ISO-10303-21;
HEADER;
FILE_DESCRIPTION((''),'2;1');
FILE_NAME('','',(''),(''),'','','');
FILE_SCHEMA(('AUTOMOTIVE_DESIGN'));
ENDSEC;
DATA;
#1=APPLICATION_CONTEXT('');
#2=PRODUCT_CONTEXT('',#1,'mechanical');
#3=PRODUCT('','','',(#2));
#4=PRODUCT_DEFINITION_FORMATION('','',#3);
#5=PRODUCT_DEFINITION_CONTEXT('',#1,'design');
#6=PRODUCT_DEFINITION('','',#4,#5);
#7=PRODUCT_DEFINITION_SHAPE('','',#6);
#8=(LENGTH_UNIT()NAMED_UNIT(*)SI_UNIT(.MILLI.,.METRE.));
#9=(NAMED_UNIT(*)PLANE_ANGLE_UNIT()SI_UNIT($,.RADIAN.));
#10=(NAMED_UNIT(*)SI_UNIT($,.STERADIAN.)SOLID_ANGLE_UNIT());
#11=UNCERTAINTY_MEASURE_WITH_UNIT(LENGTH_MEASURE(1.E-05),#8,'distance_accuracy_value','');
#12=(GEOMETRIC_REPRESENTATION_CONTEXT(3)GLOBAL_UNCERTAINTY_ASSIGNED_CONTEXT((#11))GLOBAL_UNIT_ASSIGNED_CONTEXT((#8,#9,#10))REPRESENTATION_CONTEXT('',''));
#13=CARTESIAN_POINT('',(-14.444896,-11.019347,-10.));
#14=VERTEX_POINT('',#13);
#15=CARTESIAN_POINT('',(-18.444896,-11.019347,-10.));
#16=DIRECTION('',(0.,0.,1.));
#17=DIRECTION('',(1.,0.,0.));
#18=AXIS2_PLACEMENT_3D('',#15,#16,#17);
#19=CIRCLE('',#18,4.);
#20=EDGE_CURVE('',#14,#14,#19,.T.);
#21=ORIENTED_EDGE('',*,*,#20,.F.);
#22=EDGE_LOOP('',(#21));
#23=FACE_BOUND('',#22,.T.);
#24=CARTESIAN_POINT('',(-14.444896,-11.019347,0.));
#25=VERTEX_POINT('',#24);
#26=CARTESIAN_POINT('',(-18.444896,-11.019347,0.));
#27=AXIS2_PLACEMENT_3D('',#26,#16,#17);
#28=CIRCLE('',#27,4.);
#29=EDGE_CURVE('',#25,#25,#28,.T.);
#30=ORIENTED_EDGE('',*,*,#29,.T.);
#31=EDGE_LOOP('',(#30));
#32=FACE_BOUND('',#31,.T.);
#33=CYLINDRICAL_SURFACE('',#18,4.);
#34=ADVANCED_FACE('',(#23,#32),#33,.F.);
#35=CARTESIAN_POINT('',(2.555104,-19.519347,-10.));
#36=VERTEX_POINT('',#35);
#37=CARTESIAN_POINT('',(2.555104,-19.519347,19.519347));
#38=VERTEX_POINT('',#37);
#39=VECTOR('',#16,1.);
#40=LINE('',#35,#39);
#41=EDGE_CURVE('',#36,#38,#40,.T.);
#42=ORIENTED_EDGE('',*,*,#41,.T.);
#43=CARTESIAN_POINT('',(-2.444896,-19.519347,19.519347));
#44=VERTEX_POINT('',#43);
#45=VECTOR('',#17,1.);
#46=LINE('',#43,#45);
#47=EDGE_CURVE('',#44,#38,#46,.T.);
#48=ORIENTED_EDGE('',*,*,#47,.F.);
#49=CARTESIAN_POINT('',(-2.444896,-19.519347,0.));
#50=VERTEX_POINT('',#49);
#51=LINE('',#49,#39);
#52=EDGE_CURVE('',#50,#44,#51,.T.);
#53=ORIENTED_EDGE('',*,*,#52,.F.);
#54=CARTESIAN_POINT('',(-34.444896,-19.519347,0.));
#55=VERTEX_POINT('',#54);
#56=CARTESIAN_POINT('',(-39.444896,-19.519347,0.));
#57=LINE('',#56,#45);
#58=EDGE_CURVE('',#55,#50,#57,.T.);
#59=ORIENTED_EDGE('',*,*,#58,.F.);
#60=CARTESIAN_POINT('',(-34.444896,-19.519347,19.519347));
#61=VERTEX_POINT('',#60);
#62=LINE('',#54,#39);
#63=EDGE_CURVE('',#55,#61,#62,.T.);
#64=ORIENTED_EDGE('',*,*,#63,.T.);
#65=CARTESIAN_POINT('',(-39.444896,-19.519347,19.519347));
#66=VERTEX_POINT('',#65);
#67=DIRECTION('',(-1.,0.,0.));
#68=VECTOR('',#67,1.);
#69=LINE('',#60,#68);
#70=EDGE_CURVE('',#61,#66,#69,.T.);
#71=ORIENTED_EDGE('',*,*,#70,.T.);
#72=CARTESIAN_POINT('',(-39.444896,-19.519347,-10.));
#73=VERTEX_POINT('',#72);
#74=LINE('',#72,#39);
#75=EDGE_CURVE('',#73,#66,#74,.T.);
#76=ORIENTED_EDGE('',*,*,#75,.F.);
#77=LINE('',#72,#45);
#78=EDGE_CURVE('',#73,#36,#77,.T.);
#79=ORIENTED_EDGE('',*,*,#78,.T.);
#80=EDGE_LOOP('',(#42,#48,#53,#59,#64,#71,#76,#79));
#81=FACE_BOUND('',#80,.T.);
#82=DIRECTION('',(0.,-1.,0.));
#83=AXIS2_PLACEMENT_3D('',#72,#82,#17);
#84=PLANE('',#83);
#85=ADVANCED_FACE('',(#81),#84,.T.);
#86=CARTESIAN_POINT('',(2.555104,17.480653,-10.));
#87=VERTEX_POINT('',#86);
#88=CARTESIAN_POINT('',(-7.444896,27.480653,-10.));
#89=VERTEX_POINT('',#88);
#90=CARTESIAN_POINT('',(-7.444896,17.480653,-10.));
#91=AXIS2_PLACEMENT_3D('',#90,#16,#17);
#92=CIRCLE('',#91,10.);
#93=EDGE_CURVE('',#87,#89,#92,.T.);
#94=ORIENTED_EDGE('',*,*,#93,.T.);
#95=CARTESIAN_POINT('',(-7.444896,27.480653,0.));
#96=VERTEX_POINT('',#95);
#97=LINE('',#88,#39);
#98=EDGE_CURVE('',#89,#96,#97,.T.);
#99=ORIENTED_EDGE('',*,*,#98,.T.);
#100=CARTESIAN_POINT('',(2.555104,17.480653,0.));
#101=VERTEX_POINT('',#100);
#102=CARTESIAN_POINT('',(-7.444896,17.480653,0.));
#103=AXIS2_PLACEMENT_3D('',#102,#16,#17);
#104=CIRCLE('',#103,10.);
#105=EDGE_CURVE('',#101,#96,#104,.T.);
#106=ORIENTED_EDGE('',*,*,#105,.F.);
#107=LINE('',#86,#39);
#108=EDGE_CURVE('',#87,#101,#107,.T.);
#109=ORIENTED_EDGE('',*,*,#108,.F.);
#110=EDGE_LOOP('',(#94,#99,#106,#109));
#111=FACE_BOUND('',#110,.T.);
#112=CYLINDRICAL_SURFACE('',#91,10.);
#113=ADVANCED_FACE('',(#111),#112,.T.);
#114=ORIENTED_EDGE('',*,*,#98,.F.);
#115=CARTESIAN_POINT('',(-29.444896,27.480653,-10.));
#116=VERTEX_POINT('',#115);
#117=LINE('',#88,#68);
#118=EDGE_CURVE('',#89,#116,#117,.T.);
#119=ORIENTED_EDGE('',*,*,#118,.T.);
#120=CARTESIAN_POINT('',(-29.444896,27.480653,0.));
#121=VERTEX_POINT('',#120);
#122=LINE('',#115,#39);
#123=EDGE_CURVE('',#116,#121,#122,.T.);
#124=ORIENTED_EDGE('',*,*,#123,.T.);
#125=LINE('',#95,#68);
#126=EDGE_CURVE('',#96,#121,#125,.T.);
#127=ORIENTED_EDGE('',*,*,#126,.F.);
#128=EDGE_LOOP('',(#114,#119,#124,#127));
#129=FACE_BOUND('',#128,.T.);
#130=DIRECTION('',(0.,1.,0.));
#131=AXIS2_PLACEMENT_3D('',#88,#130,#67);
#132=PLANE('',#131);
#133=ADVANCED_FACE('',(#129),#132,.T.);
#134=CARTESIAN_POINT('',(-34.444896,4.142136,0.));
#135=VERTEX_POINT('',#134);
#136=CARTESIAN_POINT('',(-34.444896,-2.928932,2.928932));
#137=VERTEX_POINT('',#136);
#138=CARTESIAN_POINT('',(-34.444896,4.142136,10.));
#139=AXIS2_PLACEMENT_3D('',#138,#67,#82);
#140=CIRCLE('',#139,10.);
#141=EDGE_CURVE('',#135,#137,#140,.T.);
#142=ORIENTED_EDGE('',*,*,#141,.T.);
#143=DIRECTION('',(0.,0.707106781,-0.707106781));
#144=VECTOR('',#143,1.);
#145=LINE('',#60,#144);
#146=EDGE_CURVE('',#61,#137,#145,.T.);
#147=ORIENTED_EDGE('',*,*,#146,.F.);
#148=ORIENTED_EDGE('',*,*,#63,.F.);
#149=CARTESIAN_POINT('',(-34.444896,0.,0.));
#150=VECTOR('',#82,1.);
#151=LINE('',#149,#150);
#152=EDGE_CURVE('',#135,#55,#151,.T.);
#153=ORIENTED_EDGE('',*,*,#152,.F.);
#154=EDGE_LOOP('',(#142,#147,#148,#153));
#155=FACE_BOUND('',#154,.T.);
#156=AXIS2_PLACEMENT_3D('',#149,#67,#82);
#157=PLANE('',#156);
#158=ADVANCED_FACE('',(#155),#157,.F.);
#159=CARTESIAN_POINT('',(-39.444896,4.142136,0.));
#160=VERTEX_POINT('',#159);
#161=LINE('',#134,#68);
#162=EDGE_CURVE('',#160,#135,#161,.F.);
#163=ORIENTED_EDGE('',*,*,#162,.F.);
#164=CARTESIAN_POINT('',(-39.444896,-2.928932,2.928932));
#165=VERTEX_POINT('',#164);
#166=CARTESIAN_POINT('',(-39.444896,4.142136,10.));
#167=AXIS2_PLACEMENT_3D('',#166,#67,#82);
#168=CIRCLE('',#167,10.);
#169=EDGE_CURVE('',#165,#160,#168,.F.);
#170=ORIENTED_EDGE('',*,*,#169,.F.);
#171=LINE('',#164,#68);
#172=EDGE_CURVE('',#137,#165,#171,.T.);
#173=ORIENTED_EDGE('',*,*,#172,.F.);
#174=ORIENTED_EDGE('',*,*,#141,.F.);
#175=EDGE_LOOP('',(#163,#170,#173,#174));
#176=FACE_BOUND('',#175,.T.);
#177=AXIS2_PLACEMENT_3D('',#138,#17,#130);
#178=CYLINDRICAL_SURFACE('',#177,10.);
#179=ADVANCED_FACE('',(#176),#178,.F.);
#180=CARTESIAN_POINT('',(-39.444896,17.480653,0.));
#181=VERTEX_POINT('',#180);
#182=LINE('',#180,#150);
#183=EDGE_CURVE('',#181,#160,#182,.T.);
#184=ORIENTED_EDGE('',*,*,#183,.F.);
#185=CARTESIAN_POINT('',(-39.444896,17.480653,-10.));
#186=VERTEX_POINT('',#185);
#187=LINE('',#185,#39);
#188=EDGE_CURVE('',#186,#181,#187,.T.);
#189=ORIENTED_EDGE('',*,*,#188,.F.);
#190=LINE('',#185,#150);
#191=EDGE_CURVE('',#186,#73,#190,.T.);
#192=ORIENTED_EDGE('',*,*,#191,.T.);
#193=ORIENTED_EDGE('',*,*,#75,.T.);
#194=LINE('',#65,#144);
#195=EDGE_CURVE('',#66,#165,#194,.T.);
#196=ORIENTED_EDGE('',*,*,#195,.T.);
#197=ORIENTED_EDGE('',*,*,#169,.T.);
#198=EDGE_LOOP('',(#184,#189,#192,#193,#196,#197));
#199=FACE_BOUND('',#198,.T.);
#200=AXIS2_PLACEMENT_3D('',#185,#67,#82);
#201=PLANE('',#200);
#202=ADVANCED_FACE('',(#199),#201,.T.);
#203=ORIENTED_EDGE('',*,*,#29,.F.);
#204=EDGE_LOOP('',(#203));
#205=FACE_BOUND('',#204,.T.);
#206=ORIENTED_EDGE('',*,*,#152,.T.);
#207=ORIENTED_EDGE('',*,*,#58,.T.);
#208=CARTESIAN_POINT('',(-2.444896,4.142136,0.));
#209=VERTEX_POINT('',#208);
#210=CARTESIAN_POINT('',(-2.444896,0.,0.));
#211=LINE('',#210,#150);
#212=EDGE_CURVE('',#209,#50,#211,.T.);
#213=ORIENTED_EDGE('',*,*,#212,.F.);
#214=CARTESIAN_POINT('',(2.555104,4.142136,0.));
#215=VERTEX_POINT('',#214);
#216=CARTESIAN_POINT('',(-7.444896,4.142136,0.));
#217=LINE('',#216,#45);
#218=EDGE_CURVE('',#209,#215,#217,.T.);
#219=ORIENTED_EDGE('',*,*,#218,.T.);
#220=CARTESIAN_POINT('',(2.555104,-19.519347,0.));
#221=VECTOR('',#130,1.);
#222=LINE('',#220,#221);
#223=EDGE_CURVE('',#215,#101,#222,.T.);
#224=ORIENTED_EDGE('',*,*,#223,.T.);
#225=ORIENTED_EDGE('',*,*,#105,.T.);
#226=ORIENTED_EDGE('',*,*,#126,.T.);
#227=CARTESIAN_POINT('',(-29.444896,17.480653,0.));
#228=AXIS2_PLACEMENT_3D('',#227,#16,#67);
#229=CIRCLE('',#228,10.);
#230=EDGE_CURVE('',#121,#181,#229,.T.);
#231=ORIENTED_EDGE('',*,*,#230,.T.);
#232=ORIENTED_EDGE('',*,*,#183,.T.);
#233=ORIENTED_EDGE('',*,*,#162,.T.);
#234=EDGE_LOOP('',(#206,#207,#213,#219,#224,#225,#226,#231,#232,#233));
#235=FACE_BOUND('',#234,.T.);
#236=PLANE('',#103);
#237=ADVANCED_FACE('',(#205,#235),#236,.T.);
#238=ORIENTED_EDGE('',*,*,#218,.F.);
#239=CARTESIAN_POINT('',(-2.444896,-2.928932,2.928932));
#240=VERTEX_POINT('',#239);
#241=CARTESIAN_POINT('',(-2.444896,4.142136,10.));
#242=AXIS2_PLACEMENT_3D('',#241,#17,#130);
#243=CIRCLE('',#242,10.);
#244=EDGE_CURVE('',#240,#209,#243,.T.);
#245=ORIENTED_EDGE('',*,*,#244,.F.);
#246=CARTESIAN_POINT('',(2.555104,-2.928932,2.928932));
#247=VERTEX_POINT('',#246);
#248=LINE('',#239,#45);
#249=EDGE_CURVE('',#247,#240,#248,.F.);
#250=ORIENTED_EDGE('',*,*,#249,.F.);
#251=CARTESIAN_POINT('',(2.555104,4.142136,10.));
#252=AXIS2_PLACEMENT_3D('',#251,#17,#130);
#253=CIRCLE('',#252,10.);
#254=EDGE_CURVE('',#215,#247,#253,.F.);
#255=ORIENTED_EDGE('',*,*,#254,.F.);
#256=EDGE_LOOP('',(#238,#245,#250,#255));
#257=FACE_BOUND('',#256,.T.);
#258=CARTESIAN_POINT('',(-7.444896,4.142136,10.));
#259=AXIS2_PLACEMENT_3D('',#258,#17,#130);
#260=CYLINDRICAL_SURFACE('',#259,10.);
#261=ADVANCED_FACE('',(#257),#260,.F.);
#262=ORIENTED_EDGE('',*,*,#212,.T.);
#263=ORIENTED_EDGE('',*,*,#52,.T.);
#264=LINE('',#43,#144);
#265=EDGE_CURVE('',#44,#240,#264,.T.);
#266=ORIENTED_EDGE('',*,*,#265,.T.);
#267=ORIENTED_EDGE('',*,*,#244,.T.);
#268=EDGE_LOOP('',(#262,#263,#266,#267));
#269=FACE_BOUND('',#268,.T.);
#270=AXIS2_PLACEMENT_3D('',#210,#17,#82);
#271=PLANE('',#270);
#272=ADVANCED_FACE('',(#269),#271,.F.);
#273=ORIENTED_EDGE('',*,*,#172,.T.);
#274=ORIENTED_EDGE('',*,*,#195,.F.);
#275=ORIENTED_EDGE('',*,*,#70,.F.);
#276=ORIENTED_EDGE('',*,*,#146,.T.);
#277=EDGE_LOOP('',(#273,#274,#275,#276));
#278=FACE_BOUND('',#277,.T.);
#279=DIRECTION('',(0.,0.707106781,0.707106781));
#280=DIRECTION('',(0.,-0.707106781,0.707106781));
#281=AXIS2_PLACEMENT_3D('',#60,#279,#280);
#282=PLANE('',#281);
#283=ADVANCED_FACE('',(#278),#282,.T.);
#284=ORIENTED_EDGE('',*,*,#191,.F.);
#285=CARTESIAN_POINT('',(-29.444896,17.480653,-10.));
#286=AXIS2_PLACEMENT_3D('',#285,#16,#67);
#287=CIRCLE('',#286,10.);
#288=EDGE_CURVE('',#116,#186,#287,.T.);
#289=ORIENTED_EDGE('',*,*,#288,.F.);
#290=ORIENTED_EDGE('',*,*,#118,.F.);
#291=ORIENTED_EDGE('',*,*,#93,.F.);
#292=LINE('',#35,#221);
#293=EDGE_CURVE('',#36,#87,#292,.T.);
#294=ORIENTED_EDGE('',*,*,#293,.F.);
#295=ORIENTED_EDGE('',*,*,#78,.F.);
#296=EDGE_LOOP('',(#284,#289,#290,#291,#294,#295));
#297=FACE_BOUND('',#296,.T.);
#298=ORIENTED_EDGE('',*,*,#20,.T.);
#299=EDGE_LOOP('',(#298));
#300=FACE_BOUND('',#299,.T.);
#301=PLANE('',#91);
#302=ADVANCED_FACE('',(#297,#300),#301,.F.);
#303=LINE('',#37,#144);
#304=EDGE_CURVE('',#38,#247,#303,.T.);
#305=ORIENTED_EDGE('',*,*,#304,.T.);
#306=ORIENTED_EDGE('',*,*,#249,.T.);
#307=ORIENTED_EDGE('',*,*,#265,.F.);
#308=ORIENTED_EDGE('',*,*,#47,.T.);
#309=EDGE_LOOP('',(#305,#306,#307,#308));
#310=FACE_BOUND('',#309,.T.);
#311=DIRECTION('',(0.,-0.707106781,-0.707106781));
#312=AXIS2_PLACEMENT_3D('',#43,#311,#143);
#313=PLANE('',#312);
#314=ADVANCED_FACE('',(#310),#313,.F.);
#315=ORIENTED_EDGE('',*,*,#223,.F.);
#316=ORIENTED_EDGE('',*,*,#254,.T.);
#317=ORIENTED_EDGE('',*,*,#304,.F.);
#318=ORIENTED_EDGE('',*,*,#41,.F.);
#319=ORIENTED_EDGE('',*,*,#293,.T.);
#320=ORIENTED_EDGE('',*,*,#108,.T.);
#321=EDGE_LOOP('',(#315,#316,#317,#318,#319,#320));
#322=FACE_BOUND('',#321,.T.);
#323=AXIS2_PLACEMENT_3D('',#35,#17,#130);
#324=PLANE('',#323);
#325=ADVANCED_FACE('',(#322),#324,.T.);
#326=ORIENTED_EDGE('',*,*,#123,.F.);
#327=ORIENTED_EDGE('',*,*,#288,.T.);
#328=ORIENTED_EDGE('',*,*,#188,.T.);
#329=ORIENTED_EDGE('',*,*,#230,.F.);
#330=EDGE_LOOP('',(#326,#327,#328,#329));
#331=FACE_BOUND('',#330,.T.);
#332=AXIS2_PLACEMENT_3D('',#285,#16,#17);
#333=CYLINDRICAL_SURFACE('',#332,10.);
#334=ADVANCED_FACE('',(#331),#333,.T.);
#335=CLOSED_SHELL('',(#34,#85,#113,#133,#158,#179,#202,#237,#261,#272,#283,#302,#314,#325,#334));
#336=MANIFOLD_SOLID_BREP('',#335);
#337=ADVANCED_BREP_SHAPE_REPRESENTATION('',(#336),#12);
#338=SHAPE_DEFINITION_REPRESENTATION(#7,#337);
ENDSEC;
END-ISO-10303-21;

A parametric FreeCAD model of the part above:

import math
import FreeCAD as App
import Part
import Sketcher

V = App.Vector


def edges_at(feature, points):
    """Names of the edges that pass closest to the given points."""
    edges = feature.Shape.Edges
    near = lambda p: min(range(len(edges)), key=lambda i: edges[i].distToShape(Part.Vertex(*p))[0])
    return sorted({f"Edge{near(p) + 1}" for p in points})

doc = App.newDocument("Part")
body = doc.addObject("PartDesign::Body", "Body")

# Sketch on XY plane
sketch1 = doc.addObject("Sketcher::SketchObject", "Sketch")
body.addObject(sketch1)
sketch1.AttachmentSupport = (doc.XY_Plane, [""])
sketch1.MapMode = "FlatFace"
sketch1.addGeometry(Part.LineSegment(V(-7.444896, 27.480653, 0), V(-29.444896, 27.480653, 0)), False)
sketch1.addGeometry(Part.ArcOfCircle(Part.Circle(V(-29.444896, 17.480653, 0), V(0, 0, 1), 10), math.radians(90), math.radians(180)), False)
sketch1.addGeometry(Part.LineSegment(V(-39.444896, 17.480653, 0), V(-39.444896, -19.519347, 0)), False)
sketch1.addGeometry(Part.LineSegment(V(-39.444896, -19.519347, 0), V(2.555104, -19.519347, 0)), False)
sketch1.addGeometry(Part.LineSegment(V(2.555104, -19.519347, 0), V(2.555104, 17.480653, 0)), False)
sketch1.addGeometry(Part.ArcOfCircle(Part.Circle(V(-7.444896, 17.480653, 0), V(0, 0, 1), 10), math.radians(0), math.radians(90)), False)
sketch1.addGeometry(Part.Circle(V(-18.444896, -11.019347, 0), V(0, 0, 1), 4), False)
sketch1.addConstraint(Sketcher.Constraint("Tangent", 0, 2, 1, 1))
sketch1.addConstraint(Sketcher.Constraint("Tangent", 1, 2, 2, 1))
sketch1.addConstraint(Sketcher.Constraint("Coincident", 2, 2, 3, 1))
sketch1.addConstraint(Sketcher.Constraint("Coincident", 3, 2, 4, 1))
sketch1.addConstraint(Sketcher.Constraint("Tangent", 4, 2, 5, 1))
sketch1.addConstraint(Sketcher.Constraint("Tangent", 5, 2, 0, 1))
sketch1.addConstraint(Sketcher.Constraint("Horizontal", 0))
sketch1.addConstraint(Sketcher.Constraint("Vertical", 2))
sketch1.addConstraint(Sketcher.Constraint("Horizontal", 3))
sketch1.addConstraint(Sketcher.Constraint("Vertical", 4))
sketch1.addConstraint(Sketcher.Constraint("Equal", 1, 5))
sketch1.addConstraint(Sketcher.Constraint("Diameter", 6, 8.0))
sketch1.addConstraint(Sketcher.Constraint("Radius", 1, 10.0))
sketch1.addConstraint(Sketcher.Constraint("DistanceX", 0, 2, 0, 1, 22.0))
sketch1.addConstraint(Sketcher.Constraint("DistanceY", 2, 2, 2, 1, 37.0))
sketch1.addConstraint(Sketcher.Constraint("DistanceX", 1, 3, 6, 3, 11.0))
sketch1.addConstraint(Sketcher.Constraint("DistanceY", 6, 3, 1, 3, 28.5))
sketch1.addConstraint(Sketcher.Constraint("DistanceX", 1, 3, -1, 1, 29.444896))
sketch1.addConstraint(Sketcher.Constraint("DistanceY", -1, 1, 1, 3, 17.480653))
pad1 = doc.addObject("PartDesign::Pad", "Pad")
body.addObject(pad1)
pad1.Profile = sketch1
pad1.Length = 10
pad1.Reversed = True

# Sketch on YZ plane
sketch2 = doc.addObject("Sketcher::SketchObject", "Sketch001")
body.addObject(sketch2)
sketch2.AttachmentSupport = (doc.YZ_Plane, [""])
sketch2.MapMode = "FlatFace"
sketch2.AttachmentOffset = App.Placement(V(0, 0, -39.444896), App.Rotation())
sketch2.addGeometry(Part.LineSegment(V(-19.519347, 0, 0), V(-19.519347, 19.519347, 0)), False)
sketch2.addGeometry(Part.LineSegment(V(-19.519347, 19.519347, 0), V(0, 0, 0)), False)
sketch2.addGeometry(Part.LineSegment(V(0, 0, 0), V(-19.519347, 0, 0)), False)
sketch2.addConstraint(Sketcher.Constraint("Coincident", 0, 2, 1, 1))
sketch2.addConstraint(Sketcher.Constraint("Coincident", 1, 2, 2, 1))
sketch2.addConstraint(Sketcher.Constraint("Coincident", 2, 2, 0, 1))
sketch2.addConstraint(Sketcher.Constraint("Vertical", 0))
sketch2.addConstraint(Sketcher.Constraint("Horizontal", 2))
sketch2.addConstraint(Sketcher.Constraint("Coincident", 1, 2, -1, 1))
sketch2.addConstraint(Sketcher.Constraint("Equal", 2, 0))
sketch2.addConstraint(Sketcher.Constraint("DistanceX", 2, 2, 2, 1, 19.519347))
pad2 = doc.addObject("PartDesign::Pad", "Pad001")
body.addObject(pad2)
pad2.Profile = sketch2
pad2.Length = 5
doc.recompute()

fillet = doc.addObject("PartDesign::Fillet", "Fillet")
body.addObject(fillet)
fillet.Base = (pad2, edges_at(pad2, [(-36.945, 0, 0)]))
fillet.Radius = 10
doc.recompute()

datumplane = doc.addObject("PartDesign::Plane", "DatumPlane")
body.addObject(datumplane)
datumplane.AttachmentSupport = (doc.YZ_Plane, [""])
datumplane.MapMode = "FlatFace"
datumplane.AttachmentOffset = App.Placement(V(0, 0, -18.444896), App.Rotation())
mirrored = doc.addObject("PartDesign::Mirrored", "Mirrored")
body.addObject(mirrored)
mirrored.Originals = [pad2]
mirrored.MirrorPlane = (datumplane, [""])
body.Tip = mirrored
doc.recompute()

fillet2 = doc.addObject("PartDesign::Fillet", "Fillet001")
body.addObject(fillet2)
fillet2.Base = (mirrored, edges_at(mirrored, [(0.055, 0, 0)]))
fillet2.Radius = 10

doc.recompute()
